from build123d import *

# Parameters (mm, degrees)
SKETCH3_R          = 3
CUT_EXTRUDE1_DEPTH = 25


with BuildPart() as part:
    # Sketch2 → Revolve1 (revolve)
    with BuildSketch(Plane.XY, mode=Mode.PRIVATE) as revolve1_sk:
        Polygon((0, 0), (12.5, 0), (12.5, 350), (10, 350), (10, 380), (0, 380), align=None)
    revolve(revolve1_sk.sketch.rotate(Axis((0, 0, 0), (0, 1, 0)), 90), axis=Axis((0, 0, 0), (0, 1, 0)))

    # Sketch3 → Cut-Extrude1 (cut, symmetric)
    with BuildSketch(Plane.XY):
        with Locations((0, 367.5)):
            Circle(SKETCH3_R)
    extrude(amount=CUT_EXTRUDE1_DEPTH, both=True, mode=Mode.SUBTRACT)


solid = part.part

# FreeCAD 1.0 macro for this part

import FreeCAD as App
import Part
import Sketcher

V = App.Vector


def add_polygon(sketch, points):
    """Adds a closed chain of lines whose ends are joined by coincident constraints."""
    first, n = sketch.GeometryCount, len(points)
    for a, b in zip(points, points[1:] + points[:1]):
        sketch.addGeometry(Part.LineSegment(App.Vector(*a, 0), App.Vector(*b, 0)), False)
    for i in range(n):
        sketch.addConstraint(Sketcher.Constraint("Coincident", first + i, 2, first + (i + 1) % n, 1))

doc = App.newDocument("Part")
body = doc.addObject("PartDesign::Body", "Body")

# Sketch on XY plane
sketch1 = body.newObject("Sketcher::SketchObject", "Sketch")
sketch1.AttachmentSupport = (doc.getObject("XY_Plane"), [""])
sketch1.MapMode = "FlatFace"
add_polygon(sketch1, [(0, 0), (12.5, 0), (12.5, 350), (10, 350), (10, 380), (0, 380)])  # lines 0-5
sketch1.addConstraint([
    Sketcher.Constraint("Horizontal", 0),
    Sketcher.Constraint("Vertical", 1),
    Sketcher.Constraint("Horizontal", 2),
    Sketcher.Constraint("Vertical", 3),
    Sketcher.Constraint("Horizontal", 4),
    Sketcher.Constraint("Vertical", 5),
    Sketcher.Constraint("Coincident", 5, 2, -1, 1),
    Sketcher.Constraint("DistanceX", 4, 2, 4, 1, 10.0),
    Sketcher.Constraint("DistanceY", 1, 1, 1, 2, 350.0),
    Sketcher.Constraint("DistanceY", 3, 1, 3, 2, 30.0),
    Sketcher.Constraint("DistanceX", 0, 1, 0, 2, 12.5),
])
revolution = body.newObject("PartDesign::Revolution", "Revolution")
revolution.Profile = sketch1
revolution.ReferenceAxis = (sketch1, ["V_Axis"])
revolution.Angle = 360

# Sketch on XY plane
sketch2 = body.newObject("Sketcher::SketchObject", "Sketch001")
sketch2.AttachmentSupport = (doc.getObject("XY_Plane"), [""])
sketch2.MapMode = "FlatFace"
sketch2.addGeometry(Part.Circle(V(0, 367.5, 0), V(0, 0, 1), 3), False)
sketch2.addConstraint([
    Sketcher.Constraint("PointOnObject", 0, 3, -2),
    Sketcher.Constraint("Diameter", 0, 6.0),
    Sketcher.Constraint("DistanceY", -1, 1, 0, 3, 367.5),
])
pocket1 = body.newObject("PartDesign::Pocket", "Pocket")
pocket1.Profile = sketch2
pocket1.Length = 50
pocket1.Midplane = True

doc.recompute()
